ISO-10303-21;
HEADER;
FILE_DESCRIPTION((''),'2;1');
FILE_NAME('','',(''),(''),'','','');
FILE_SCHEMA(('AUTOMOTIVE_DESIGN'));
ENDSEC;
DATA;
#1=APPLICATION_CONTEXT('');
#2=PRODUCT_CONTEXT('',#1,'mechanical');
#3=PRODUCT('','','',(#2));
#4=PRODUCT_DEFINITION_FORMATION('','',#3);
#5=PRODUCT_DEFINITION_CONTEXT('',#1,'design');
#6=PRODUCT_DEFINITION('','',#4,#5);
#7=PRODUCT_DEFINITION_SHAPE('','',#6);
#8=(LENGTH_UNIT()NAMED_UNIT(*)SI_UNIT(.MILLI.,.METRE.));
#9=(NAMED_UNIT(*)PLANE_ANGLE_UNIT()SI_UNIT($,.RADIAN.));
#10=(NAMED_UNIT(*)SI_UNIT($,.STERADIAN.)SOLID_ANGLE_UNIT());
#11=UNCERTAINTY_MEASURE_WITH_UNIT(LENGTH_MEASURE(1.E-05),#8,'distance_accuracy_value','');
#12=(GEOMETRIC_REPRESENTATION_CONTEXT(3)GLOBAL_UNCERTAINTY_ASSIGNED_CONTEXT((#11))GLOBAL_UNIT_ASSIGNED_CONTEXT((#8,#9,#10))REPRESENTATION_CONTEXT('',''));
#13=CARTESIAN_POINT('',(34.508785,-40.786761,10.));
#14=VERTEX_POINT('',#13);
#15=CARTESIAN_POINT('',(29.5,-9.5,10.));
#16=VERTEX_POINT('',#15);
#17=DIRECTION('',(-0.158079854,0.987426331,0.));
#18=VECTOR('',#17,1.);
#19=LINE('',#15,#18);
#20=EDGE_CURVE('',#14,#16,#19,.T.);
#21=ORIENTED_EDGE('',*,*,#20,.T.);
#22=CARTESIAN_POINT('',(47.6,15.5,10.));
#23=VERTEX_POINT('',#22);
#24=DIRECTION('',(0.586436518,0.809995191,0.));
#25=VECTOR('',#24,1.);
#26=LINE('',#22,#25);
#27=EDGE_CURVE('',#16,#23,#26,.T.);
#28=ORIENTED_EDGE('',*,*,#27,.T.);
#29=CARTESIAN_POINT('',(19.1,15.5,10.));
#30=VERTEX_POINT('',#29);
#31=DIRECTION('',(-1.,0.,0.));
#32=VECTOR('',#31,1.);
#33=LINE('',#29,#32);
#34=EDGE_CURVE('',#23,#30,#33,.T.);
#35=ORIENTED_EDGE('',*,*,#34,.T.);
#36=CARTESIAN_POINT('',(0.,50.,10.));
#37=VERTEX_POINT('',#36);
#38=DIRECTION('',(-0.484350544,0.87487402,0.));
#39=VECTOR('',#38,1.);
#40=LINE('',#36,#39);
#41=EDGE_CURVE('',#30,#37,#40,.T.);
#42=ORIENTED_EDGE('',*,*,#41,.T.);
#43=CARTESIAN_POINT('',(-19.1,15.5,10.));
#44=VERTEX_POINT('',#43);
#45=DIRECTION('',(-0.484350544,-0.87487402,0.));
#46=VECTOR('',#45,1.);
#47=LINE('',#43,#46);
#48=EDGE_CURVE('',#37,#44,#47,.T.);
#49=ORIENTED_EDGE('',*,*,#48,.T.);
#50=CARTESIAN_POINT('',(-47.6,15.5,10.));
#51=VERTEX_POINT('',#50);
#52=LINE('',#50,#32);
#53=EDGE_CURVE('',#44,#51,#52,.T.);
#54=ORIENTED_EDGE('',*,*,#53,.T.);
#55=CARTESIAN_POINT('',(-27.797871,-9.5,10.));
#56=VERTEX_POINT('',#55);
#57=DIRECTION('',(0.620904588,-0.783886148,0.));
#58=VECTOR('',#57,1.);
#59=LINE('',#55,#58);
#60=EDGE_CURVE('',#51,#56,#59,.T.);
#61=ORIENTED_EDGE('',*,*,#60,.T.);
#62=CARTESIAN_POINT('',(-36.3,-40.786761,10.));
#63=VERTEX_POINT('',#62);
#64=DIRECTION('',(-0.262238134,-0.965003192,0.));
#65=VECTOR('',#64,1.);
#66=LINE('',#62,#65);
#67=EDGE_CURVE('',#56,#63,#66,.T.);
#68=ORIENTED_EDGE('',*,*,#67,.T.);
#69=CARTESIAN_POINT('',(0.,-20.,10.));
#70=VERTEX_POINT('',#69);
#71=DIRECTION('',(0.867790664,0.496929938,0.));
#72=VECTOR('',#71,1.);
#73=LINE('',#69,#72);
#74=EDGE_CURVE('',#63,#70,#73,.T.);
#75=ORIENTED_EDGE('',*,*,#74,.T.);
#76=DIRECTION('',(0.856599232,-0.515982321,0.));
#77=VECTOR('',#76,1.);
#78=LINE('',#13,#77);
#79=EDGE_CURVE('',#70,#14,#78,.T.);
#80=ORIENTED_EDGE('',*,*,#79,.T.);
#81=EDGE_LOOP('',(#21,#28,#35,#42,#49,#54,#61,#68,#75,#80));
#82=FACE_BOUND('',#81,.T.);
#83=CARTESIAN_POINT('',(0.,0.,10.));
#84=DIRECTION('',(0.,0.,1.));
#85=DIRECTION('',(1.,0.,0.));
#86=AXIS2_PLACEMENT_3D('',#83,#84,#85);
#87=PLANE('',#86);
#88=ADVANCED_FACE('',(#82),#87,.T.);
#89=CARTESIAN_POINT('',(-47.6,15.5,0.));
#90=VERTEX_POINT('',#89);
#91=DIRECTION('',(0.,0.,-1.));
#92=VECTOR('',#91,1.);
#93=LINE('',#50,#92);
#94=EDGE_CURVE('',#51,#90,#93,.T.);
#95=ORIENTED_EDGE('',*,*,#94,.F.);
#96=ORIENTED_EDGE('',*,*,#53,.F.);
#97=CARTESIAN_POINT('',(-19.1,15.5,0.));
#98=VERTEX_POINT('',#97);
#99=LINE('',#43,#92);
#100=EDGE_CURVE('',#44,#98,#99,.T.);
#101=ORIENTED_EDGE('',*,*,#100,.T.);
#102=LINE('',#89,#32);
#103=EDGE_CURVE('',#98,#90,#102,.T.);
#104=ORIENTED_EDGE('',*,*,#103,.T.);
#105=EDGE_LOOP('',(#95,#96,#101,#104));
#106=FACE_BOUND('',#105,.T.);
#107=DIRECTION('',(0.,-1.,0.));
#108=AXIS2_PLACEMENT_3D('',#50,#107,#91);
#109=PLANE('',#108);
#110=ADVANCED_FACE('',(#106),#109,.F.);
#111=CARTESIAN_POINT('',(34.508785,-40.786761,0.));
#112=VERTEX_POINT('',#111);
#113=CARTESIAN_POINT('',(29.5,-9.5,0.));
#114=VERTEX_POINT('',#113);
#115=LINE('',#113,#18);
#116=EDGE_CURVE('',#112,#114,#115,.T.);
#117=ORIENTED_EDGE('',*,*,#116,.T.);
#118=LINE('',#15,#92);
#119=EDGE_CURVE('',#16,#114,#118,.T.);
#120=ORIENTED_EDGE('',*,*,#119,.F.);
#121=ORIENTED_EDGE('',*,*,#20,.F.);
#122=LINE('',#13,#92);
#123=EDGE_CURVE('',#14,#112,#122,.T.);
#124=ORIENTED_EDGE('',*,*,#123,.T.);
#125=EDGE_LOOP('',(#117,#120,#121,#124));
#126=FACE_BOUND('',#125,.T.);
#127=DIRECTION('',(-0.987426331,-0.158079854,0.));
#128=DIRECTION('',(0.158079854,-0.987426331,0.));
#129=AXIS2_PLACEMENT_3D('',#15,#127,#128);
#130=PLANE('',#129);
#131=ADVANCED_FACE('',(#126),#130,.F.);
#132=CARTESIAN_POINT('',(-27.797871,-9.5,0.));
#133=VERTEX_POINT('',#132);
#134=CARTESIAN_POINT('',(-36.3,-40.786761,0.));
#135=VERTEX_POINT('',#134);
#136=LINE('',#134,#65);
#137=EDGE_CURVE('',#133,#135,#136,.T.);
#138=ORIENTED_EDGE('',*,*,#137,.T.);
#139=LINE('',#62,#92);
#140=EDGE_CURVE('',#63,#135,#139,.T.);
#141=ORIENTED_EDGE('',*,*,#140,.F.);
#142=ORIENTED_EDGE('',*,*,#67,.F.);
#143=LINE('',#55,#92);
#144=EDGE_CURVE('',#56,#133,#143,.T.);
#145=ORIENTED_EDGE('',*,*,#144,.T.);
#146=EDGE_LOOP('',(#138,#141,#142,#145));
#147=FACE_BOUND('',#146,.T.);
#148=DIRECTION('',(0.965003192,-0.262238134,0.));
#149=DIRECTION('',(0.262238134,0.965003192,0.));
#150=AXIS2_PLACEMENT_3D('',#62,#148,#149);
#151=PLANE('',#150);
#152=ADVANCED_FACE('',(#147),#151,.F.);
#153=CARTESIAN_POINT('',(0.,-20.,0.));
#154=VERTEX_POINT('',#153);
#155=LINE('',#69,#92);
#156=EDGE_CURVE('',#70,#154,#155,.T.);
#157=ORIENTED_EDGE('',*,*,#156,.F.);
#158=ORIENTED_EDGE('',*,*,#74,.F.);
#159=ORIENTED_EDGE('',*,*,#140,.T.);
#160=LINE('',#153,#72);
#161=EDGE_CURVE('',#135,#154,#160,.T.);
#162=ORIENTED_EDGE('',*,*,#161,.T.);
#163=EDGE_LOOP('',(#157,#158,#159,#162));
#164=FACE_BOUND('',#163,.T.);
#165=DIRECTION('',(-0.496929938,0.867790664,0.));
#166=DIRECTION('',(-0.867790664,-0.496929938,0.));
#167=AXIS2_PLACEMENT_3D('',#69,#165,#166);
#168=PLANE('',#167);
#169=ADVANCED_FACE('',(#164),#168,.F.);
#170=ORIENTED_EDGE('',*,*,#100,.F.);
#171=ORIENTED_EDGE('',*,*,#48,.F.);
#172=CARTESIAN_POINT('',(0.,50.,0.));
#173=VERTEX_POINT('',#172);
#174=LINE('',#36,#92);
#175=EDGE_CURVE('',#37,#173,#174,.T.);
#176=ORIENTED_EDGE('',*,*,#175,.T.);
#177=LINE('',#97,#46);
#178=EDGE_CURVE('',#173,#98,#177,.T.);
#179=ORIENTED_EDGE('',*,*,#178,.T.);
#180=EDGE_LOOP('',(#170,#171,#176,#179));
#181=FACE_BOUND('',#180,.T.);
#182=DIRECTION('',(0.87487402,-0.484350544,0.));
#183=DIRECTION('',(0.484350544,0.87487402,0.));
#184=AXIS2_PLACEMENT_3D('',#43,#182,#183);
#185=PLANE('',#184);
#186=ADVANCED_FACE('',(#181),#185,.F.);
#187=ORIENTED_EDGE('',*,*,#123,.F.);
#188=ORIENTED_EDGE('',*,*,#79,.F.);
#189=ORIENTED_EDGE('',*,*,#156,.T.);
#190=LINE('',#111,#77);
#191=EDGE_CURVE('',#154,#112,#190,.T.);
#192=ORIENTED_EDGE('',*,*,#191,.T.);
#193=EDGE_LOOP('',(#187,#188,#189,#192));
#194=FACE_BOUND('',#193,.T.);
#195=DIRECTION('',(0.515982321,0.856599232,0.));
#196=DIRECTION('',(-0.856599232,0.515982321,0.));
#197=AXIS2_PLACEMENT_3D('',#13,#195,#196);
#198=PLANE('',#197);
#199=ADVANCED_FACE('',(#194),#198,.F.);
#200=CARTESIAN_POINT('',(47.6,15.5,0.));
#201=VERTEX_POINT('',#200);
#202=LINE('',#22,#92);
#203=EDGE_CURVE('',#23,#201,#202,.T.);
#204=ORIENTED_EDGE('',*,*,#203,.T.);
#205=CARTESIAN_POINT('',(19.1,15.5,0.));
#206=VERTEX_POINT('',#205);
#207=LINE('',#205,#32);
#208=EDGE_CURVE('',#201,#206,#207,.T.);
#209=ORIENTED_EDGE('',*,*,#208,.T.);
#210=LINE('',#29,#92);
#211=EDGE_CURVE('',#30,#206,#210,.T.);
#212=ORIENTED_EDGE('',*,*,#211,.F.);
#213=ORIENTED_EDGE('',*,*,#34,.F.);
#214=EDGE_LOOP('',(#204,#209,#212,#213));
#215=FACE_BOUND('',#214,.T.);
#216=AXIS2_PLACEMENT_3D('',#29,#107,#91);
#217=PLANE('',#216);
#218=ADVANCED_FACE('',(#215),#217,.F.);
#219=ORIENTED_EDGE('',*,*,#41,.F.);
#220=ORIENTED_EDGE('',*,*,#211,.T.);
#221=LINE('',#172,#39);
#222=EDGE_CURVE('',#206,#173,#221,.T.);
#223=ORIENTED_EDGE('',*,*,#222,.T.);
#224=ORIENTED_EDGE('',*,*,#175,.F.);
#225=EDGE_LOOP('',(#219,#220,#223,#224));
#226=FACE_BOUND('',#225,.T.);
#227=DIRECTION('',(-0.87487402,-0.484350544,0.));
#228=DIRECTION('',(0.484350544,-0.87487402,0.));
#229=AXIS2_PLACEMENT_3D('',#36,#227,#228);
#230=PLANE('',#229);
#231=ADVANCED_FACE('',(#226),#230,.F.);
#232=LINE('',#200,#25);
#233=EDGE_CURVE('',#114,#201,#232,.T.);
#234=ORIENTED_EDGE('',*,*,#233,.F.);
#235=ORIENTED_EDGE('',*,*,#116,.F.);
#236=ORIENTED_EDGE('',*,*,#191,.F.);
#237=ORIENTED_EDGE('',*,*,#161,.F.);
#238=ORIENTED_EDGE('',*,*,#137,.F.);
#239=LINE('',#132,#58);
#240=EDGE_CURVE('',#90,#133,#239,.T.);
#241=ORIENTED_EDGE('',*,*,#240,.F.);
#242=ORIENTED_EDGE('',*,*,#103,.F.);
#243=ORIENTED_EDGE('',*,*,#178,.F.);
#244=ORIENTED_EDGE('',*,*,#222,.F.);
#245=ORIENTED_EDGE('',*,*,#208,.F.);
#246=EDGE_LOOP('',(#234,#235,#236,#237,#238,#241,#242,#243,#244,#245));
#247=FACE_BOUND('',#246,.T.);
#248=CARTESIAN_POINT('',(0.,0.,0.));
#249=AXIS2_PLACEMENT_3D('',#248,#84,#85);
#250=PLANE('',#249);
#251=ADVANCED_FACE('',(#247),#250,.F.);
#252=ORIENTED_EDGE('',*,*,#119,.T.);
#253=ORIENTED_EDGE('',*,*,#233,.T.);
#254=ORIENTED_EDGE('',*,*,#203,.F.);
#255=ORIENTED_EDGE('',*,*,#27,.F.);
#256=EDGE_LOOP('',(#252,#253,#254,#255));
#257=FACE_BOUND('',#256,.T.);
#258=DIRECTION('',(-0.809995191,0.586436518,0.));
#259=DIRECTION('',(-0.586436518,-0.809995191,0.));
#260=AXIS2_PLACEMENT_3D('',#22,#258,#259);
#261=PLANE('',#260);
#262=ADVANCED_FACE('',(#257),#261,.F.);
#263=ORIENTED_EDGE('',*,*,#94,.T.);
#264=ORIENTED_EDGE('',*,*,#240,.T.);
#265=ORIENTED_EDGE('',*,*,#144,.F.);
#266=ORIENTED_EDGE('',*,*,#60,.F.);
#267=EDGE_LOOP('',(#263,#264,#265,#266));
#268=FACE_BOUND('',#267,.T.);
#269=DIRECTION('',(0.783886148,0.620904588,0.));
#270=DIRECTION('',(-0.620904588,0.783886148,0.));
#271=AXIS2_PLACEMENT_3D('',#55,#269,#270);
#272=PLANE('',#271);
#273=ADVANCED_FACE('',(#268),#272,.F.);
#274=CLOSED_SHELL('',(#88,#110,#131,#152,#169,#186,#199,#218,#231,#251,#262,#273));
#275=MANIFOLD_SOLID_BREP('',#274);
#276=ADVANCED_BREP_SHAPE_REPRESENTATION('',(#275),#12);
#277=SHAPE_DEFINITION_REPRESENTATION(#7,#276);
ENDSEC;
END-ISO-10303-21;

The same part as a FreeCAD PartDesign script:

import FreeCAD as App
import Part
import Sketcher


def add_polygon(sketch, points):
    """Adds a closed chain of lines whose ends are joined by coincident constraints."""
    first, n = sketch.GeometryCount, len(points)
    for a, b in zip(points, points[1:] + points[:1]):
        sketch.addGeometry(Part.LineSegment(App.Vector(*a, 0), App.Vector(*b, 0)), False)
    for i in range(n):
        sketch.addConstraint(Sketcher.Constraint("Coincident", first + i, 2, first + (i + 1) % n, 1))

doc = App.newDocument("Part")
params = doc.addObject("Spreadsheet::Sheet", "Params")
for row, (alias, value) in enumerate([
    ("sketch1_width", "28.5 mm"),
    ("pad1_length", "10 mm"),
], start=1):
    params.set(f"A{row}", alias)
    params.set(f"B{row}", "=" + value)
    params.setAlias(f"B{row}", alias)

body = doc.addObject("PartDesign::Body", "Body")

sketch1 = body.newObject("Sketcher::SketchObject", "Sketch")
sketch1.AttachmentSupport = (doc.getObject("XY_Plane"), [""])
sketch1.MapMode = "FlatFace"
add_polygon(sketch1, [(19.1, 15.5), (0, 50), (-19.1, 15.5), (-47.6, 15.5), (-27.797871, -9.5), (-36.3, -40.786761), (0, -20), (34.508785, -40.786761), (29.5, -9.5), (47.6, 15.5)])
sketch1.addConstraint([
    Sketcher.Constraint("Horizontal", 2),
    Sketcher.Constraint("Horizontal", 9),
    Sketcher.Constraint("Symmetric", 2, 2, 8, 2, -2),
    Sketcher.Constraint("PointOnObject", 0, 2, -2),
    Sketcher.Constraint("PointOnObject", 5, 2, -2),
    Sketcher.Constraint("Horizontal", 4, 2, 6, 2),
    Sketcher.Constraint("Horizontal", 3, 2, 7, 2),
    Sketcher.Constraint("Equal", 2, 9),
    Sketcher.Constraint("DistanceX", 2, 2, 2, 1, 28.5),
    Sketcher.Constraint("DistanceY", -1, 1, 0, 2, 50.0),
    Sketcher.Constraint("DistanceY", 5, 2, -1, 1, 20.0),
    Sketcher.Constraint("DistanceY", 3, 2, 1, 2, 25.0),
    Sketcher.Constraint("DistanceX", 1, 2, -1, 1, 19.1),
    Sketcher.Constraint("DistanceY", -1, 1, 1, 2, 15.5),
    Sketcher.Constraint("DistanceX", 4, 2, -1, 1, 36.3),
    Sketcher.Constraint("DistanceX", -1, 1, 7, 2, 29.5),
    Sketcher.Constraint("Distance", 6, 40.2858),
    Sketcher.Constraint("Distance", 7, 31.685159),
    Sketcher.Constraint("DistanceX", 3, 2, -1, 1, 27.797871),
])
sketch1.setExpression("Constraints[18]", "Params.sketch1_width")
pad1 = body.newObject("PartDesign::Pad", "Pad")
pad1.Profile = sketch1
pad1.setExpression("Length", "Params.pad1_length")

doc.recompute()
